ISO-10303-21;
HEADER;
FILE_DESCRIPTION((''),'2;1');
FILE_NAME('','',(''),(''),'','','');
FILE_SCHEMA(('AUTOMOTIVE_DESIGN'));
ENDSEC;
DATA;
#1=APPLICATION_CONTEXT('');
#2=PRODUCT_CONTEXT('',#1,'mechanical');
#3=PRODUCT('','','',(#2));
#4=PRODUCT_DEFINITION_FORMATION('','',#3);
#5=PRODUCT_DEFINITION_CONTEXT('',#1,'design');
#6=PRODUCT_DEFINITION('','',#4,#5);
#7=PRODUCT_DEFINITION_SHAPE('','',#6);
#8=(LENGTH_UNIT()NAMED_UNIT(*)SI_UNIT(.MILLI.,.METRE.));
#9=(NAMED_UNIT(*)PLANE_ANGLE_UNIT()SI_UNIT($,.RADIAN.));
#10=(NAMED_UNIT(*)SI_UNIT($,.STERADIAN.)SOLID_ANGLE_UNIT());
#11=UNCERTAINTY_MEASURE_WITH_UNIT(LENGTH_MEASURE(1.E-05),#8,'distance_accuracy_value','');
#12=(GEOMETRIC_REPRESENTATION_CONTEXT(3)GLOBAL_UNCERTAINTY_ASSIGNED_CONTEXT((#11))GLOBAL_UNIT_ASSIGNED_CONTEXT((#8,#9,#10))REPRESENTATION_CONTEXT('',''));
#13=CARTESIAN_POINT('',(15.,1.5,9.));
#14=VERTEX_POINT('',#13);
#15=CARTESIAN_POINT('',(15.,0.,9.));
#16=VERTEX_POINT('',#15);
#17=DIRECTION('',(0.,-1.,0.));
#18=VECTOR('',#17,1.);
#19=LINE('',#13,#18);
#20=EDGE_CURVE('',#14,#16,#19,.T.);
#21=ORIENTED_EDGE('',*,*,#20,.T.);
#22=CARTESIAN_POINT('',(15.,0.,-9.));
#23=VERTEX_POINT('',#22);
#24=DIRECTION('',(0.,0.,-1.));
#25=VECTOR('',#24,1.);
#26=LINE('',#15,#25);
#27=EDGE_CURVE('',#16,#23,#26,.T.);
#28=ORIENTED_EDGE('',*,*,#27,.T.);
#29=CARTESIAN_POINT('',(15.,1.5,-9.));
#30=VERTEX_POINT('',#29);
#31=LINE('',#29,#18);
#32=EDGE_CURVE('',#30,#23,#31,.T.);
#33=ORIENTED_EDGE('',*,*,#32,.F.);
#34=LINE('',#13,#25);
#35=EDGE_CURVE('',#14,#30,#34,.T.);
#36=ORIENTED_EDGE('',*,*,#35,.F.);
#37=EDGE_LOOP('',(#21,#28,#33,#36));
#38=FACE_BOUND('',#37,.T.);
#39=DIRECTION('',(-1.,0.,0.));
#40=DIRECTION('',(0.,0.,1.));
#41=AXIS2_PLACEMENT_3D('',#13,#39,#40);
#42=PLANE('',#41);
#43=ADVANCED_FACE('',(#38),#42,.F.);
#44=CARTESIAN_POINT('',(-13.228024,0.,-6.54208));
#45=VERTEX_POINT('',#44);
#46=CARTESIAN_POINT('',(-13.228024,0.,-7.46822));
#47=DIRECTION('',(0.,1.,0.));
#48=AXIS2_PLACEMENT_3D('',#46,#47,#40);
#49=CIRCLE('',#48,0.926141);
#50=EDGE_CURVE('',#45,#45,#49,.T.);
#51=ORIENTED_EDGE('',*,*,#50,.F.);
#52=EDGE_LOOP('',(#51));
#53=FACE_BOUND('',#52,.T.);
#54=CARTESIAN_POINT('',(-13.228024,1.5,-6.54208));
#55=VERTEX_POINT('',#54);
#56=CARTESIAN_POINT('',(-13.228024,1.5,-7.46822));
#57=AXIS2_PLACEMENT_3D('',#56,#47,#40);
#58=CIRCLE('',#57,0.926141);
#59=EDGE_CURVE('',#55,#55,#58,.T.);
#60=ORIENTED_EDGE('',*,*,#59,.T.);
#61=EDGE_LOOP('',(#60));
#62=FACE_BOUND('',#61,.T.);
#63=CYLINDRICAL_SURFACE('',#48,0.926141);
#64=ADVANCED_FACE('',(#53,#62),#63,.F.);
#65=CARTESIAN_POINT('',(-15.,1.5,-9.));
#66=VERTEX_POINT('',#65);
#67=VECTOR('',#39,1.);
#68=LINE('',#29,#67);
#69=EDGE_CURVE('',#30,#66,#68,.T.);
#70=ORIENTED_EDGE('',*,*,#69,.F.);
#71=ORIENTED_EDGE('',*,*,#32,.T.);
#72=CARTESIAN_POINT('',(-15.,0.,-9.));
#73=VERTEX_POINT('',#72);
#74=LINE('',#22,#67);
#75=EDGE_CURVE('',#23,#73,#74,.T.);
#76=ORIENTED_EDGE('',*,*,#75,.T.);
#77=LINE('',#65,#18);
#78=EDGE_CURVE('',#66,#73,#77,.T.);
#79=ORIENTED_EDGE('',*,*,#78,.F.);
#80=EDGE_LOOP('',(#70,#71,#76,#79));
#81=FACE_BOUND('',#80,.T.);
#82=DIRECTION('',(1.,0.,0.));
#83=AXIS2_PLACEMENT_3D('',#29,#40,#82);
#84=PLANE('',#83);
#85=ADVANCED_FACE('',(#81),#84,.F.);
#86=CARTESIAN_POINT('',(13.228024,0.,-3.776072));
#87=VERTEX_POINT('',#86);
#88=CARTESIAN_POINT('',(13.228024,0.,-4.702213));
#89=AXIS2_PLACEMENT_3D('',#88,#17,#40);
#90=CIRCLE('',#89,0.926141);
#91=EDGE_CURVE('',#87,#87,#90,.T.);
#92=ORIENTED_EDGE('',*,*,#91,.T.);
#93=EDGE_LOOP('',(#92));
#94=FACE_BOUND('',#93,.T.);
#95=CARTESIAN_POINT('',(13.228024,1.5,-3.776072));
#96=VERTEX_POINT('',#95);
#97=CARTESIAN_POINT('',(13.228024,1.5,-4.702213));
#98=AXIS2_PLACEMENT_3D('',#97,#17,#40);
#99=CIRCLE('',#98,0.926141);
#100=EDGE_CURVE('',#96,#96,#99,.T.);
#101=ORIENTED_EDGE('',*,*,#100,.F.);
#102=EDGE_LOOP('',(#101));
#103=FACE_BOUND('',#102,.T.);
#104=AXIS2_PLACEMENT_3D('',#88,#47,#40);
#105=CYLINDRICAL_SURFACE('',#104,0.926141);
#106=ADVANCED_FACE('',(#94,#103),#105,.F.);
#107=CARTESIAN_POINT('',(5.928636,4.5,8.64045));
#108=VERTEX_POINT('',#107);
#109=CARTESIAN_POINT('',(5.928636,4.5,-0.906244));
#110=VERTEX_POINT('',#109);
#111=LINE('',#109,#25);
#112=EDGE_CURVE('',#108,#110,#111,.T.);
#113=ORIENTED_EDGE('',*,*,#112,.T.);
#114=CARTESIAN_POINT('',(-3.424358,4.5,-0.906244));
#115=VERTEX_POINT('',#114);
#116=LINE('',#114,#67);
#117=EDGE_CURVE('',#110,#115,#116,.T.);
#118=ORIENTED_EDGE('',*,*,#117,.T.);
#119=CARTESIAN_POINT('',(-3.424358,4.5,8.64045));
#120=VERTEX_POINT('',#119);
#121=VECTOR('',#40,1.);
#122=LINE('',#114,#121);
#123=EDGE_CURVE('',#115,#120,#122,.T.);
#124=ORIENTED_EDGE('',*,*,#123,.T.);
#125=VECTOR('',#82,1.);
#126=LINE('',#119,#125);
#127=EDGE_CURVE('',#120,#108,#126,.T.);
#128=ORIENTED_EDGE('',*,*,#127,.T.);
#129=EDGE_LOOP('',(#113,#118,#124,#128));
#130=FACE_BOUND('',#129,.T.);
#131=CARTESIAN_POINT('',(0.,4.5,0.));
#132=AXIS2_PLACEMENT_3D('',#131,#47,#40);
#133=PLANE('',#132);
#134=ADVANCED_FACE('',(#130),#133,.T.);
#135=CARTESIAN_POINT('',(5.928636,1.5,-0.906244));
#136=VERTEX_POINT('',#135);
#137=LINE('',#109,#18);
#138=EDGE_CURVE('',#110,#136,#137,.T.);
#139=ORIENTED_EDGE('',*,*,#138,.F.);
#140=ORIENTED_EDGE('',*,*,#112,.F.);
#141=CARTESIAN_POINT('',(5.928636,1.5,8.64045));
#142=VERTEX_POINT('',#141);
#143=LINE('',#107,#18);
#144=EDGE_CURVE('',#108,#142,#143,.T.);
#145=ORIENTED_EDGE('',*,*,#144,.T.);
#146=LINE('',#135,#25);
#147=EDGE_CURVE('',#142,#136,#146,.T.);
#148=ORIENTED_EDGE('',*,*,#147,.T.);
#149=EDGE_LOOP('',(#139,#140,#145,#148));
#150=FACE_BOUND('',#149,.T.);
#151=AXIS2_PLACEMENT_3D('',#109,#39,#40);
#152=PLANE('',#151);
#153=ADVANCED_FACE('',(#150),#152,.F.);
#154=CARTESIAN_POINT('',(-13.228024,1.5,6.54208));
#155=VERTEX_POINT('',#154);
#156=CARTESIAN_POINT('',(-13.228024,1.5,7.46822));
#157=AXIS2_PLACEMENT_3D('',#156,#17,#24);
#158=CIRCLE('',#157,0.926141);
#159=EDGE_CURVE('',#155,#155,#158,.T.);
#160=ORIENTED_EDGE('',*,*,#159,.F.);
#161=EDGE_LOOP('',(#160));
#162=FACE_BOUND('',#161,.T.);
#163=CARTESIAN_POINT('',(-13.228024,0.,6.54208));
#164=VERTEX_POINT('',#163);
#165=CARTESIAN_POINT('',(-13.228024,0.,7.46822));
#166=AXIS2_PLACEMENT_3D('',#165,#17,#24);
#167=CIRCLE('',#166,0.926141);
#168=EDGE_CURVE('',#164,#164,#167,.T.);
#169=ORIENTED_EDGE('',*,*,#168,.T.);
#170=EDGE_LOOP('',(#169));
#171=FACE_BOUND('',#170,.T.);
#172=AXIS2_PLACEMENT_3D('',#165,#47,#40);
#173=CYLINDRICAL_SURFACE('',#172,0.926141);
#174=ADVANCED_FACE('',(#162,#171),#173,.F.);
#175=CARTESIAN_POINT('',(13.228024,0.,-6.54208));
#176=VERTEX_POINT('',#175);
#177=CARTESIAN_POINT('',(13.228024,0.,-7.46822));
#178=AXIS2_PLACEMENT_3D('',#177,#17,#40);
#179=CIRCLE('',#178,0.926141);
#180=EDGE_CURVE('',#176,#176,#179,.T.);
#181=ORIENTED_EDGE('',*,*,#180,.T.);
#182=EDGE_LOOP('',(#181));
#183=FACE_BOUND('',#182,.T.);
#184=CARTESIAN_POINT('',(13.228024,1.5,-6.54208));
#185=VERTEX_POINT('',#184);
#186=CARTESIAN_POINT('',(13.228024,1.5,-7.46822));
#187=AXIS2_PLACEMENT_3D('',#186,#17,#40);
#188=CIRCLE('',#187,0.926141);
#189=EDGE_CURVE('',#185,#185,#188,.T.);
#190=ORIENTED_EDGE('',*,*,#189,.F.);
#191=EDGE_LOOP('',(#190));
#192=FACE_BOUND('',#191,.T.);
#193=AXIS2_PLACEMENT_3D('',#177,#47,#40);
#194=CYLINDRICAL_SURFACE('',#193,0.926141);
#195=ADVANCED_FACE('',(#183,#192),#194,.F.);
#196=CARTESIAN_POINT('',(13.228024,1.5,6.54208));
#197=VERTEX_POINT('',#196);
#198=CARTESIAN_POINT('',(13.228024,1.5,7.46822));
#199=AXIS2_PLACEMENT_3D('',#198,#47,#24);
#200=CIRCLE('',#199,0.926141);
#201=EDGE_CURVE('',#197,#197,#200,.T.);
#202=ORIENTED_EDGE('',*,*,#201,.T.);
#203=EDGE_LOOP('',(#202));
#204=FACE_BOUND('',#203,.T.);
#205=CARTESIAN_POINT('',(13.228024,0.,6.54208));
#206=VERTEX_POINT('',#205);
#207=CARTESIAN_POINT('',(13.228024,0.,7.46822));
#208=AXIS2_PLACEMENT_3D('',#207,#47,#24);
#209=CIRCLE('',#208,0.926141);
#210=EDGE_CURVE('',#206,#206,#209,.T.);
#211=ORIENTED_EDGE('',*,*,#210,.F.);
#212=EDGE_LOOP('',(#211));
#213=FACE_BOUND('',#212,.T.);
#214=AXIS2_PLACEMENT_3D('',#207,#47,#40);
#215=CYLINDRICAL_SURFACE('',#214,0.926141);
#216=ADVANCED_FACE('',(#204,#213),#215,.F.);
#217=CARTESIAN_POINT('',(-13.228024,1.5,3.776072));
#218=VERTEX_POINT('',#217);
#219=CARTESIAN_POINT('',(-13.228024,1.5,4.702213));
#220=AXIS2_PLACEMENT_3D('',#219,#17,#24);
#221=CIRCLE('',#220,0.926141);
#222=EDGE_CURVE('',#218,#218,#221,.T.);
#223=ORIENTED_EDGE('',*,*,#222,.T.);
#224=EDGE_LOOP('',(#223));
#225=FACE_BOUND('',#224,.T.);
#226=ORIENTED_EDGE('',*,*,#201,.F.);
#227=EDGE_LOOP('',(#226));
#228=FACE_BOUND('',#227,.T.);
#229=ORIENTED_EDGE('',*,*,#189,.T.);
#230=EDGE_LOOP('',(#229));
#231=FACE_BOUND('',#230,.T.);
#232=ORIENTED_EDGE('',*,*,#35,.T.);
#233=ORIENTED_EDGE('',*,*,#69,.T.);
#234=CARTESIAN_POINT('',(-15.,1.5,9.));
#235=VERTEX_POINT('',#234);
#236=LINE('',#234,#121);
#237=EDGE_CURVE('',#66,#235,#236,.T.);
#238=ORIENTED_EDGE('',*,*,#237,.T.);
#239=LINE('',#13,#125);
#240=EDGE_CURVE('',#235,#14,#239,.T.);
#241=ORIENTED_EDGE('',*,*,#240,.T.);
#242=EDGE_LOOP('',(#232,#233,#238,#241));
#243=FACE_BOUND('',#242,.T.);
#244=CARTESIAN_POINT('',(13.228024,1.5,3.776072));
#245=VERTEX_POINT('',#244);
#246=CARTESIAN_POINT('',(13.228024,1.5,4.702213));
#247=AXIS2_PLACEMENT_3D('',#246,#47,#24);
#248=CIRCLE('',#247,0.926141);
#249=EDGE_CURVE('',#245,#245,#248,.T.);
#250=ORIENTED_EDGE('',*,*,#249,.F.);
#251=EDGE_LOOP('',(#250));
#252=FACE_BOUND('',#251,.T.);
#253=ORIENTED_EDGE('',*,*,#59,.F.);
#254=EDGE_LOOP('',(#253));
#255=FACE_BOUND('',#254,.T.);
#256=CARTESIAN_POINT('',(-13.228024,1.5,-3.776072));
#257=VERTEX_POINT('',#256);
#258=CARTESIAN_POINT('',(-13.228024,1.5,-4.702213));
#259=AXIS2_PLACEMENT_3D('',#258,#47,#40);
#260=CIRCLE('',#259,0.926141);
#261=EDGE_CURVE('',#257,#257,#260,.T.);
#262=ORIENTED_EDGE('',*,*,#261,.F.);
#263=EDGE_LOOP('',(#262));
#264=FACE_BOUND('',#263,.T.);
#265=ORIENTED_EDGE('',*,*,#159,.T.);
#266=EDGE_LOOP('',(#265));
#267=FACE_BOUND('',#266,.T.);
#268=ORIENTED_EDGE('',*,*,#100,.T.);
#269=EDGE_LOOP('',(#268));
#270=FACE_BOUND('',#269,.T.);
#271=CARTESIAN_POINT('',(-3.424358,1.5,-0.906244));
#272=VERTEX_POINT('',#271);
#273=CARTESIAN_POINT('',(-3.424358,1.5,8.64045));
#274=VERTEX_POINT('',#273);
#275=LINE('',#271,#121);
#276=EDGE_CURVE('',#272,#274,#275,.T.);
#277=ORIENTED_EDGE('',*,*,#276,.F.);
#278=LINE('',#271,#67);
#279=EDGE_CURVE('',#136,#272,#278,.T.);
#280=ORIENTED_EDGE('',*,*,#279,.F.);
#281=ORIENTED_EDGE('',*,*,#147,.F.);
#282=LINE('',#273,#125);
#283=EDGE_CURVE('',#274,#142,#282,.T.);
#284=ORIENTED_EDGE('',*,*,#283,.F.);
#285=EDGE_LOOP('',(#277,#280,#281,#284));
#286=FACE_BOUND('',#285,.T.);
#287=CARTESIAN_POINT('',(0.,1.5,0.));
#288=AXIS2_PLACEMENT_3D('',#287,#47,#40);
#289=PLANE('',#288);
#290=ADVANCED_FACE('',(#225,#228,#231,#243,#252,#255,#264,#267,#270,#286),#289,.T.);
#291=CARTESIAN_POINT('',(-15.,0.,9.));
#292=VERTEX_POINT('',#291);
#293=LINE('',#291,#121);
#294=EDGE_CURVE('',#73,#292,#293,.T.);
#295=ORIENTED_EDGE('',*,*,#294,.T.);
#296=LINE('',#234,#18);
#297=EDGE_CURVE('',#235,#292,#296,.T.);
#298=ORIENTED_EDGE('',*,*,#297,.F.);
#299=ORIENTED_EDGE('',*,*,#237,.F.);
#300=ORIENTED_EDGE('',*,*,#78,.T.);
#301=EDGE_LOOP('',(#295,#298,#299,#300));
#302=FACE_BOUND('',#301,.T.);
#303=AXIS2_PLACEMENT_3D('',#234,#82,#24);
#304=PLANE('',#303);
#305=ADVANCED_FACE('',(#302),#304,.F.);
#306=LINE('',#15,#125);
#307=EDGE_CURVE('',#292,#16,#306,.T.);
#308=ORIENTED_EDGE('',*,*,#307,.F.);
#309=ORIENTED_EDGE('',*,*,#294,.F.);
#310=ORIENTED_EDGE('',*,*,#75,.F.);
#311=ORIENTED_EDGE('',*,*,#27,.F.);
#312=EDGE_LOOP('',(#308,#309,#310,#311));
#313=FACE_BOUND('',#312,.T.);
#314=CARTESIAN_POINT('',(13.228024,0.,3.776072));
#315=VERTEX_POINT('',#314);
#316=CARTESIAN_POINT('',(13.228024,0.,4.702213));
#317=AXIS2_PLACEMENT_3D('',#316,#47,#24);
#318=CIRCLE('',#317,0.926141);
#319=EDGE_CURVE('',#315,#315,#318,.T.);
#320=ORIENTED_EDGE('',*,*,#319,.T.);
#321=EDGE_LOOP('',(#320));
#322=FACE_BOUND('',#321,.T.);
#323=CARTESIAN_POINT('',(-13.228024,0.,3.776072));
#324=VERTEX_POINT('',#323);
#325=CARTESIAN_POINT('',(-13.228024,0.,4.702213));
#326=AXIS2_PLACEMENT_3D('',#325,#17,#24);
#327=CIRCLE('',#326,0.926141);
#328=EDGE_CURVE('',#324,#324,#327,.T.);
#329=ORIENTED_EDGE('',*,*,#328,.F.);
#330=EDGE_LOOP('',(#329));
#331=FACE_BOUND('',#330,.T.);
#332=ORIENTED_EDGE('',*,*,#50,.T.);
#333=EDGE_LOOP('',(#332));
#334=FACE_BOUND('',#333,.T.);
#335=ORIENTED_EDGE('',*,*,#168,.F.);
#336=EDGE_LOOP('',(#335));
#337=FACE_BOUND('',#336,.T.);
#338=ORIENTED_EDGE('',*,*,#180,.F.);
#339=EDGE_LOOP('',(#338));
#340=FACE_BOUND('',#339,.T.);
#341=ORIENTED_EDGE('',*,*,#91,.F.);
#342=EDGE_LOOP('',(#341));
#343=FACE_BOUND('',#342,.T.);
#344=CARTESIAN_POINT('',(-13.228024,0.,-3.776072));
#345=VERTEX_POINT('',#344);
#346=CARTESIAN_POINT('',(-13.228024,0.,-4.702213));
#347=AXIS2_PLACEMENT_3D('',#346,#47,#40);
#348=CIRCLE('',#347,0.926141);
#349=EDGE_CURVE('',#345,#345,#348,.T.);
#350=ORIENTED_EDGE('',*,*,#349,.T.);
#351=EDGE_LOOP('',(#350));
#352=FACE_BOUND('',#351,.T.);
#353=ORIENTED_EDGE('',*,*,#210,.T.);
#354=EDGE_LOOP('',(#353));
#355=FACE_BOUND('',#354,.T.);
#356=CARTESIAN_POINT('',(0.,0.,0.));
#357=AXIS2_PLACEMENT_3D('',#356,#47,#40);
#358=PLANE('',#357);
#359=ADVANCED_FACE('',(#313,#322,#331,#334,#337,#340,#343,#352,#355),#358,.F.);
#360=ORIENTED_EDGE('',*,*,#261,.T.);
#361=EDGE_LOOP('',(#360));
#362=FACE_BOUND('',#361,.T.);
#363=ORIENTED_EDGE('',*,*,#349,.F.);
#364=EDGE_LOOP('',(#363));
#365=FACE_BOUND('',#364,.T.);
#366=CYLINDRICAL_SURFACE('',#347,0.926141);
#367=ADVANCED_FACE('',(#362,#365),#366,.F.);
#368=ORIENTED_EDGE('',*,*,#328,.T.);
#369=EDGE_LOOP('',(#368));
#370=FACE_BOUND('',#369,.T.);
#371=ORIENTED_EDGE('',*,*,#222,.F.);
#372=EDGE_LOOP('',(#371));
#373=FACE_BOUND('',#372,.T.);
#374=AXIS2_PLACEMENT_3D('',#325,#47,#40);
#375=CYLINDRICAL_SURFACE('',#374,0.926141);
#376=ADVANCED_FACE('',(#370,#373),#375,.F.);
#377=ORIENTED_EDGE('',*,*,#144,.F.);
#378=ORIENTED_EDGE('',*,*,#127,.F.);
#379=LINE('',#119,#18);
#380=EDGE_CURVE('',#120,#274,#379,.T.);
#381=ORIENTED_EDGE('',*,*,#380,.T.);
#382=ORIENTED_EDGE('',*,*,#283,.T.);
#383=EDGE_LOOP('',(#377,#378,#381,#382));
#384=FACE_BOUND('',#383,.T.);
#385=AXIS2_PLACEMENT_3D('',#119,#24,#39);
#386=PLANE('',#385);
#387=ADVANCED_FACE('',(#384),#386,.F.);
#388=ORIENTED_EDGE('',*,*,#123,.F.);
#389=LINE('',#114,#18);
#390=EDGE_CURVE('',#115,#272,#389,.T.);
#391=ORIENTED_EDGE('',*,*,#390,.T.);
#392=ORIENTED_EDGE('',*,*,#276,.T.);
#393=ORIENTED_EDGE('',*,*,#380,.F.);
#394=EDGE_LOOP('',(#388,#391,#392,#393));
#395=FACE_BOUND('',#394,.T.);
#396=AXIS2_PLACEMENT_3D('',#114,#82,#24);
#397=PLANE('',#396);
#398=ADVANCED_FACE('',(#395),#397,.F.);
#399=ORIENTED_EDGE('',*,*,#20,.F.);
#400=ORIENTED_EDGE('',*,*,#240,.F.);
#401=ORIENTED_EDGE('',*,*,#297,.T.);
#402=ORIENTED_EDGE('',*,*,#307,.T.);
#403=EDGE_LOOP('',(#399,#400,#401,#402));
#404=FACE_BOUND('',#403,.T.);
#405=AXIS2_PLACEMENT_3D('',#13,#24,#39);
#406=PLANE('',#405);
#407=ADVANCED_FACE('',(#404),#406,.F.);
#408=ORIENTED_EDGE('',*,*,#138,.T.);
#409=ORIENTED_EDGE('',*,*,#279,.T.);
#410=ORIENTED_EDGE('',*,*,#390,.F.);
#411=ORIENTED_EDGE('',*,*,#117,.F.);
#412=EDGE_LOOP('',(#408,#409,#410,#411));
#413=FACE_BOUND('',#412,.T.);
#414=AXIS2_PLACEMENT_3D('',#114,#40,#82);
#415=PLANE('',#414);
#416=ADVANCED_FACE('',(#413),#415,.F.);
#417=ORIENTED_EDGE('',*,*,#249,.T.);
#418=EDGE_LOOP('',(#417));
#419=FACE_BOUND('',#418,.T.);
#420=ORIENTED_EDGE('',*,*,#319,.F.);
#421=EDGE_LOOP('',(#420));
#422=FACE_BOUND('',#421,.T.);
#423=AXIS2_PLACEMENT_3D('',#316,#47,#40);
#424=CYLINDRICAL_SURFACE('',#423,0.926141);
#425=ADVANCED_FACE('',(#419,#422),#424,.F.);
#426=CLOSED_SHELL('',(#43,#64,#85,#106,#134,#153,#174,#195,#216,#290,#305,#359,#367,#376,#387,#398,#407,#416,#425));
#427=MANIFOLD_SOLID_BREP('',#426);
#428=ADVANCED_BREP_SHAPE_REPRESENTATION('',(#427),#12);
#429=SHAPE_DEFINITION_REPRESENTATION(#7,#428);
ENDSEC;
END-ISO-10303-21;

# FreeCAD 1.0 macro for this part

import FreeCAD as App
import Part
import Sketcher
from FreeCAD import Vector

doc = App.newDocument("Part")
body = doc.addObject("PartDesign::Body", "Body")

# Sketch on XZ plane
sketch1 = body.newObject("Sketcher::SketchObject", "Sketch")
sketch1.AttachmentSupport = (doc.getObject("XZ_Plane"), [""])
sketch1.MapMode = "FlatFace"
sketch1.addGeometry([
    Part.LineSegment(Vector(-15, -9, 0), Vector(-15, 9, 0)),
    Part.LineSegment(Vector(-15, 9, 0), Vector(15, 9, 0)),
    Part.LineSegment(Vector(15, 9, 0), Vector(15, -9, 0)),
    Part.LineSegment(Vector(15, -9, 0), Vector(-15, -9, 0)),
], False)
sketch1.addConstraint([
    Sketcher.Constraint("Coincident", 0, 2, 1, 1),
    Sketcher.Constraint("Coincident", 1, 2, 2, 1),
    Sketcher.Constraint("Coincident", 2, 2, 3, 1),
    Sketcher.Constraint("Coincident", 3, 2, 0, 1),
    Sketcher.Constraint("Vertical", 0),
    Sketcher.Constraint("Horizontal", 1),
    Sketcher.Constraint("Vertical", 2),
    Sketcher.Constraint("Horizontal", 3),
    Sketcher.Constraint("Symmetric", 0, 2, 2, 2, -1, 1),
    Sketcher.Constraint("DistanceX", 1, 1, 1, 2, 30.0),
    Sketcher.Constraint("DistanceY", 0, 1, 0, 2, 18.0),
])
pad1 = body.newObject("PartDesign::Pad", "Pad")
pad1.Profile = sketch1
pad1.Length = 1.5
pad1.Reversed = True

# Sketch on XZ plane
sketch2 = body.newObject("Sketcher::SketchObject", "Sketch001")
sketch2.AttachmentSupport = (doc.getObject("XZ_Plane"), [""])
sketch2.MapMode = "FlatFace"
sketch2.AttachmentOffset = App.Placement(Vector(0, 0, -1.5), App.Rotation())
sketch2.addGeometry([
    Part.LineSegment(Vector(-3, -1, 0), Vector(-3, 9, 0)),
    Part.LineSegment(Vector(-3, 9, 0), Vector(6, 9, 0)),
    Part.LineSegment(Vector(6, 9, 0), Vector(6, -1, 0)),
    Part.LineSegment(Vector(6, -1, 0), Vector(-3, -1, 0)),
], False)
sketch2.addConstraint([
    Sketcher.Constraint("Coincident", 0, 2, 1, 1),
    Sketcher.Constraint("Coincident", 1, 2, 2, 1),
    Sketcher.Constraint("Coincident", 2, 2, 3, 1),
    Sketcher.Constraint("Coincident", 3, 2, 0, 1),
    Sketcher.Constraint("Vertical", 0),
    Sketcher.Constraint("Horizontal", 1),
    Sketcher.Constraint("Vertical", 2),
    Sketcher.Constraint("Horizontal", 3),
    Sketcher.Constraint("DistanceX", 1, 1, 1, 2, 9.352994),
    Sketcher.Constraint("DistanceY", 0, 1, 0, 2, 9.546695),
    Sketcher.Constraint("DistanceY", -1, 1, 0, 2, 8.64045),
    Sketcher.Constraint("DistanceX", 0, 2, -1, 1, 3.424358),
])
pad2 = body.newObject("PartDesign::Pad", "Pad001")
pad2.Profile = sketch2
pad2.Length = 3
pad2.Reversed = True

# Sketch on XZ plane
sketch3 = body.newObject("Sketcher::SketchObject", "Sketch002")
sketch3.AttachmentSupport = (doc.getObject("XZ_Plane"), [""])
sketch3.MapMode = "FlatFace"
sketch3.AttachmentOffset = App.Placement(Vector(0, 0, -1.5), App.Rotation())
sketch3.addGeometry([
    Part.Circle(Vector(-13.2, -7.5, 0), Vector(0, 0, 1), 0.9),
    Part.Circle(Vector(-13.2, -4.7, 0), Vector(0, 0, 1), 0.9),
], False)
sketch3.addConstraint([
    Sketcher.Constraint("Equal", 0, 1),
    Sketcher.Constraint("Vertical", 0, 3, 1, 3),
    Sketcher.Constraint("Diameter", 0, 1.852281),
    Sketcher.Constraint("DistanceY", 0, 3, -1, 1, 7.46822),
    Sketcher.Constraint("DistanceX", 0, 3, -1, 1, 13.228024),
    Sketcher.Constraint("DistanceY", 1, 3, -1, 1, 4.702213),
])
pocket1 = body.newObject("PartDesign::Pocket", "Pocket")
pocket1.Profile = sketch3
pocket1.Type = "ThroughAll"
pocket1.Reversed = True
doc.recompute()

polarpattern = body.newObject("PartDesign::PolarPattern", "PolarPattern")
polarpattern.Originals = [pocket1]
polarpattern.Axis = (doc.getObject("Y_Axis"), [""])
polarpattern.Angle = 360
polarpattern.Occurrences = 2
body.Tip = polarpattern
doc.recompute()

mirrored = body.newObject("PartDesign::Mirrored", "Mirrored")
mirrored.Originals = [pocket1]
mirrored.MirrorPlane = (doc.getObject("YZ_Plane"), [""])
body.Tip = mirrored

# Sketch on XZ plane
sketch4 = body.newObject("Sketcher::SketchObject", "Sketch003")
sketch4.AttachmentSupport = (doc.getObject("XZ_Plane"), [""])
sketch4.MapMode = "FlatFace"
sketch4.AttachmentOffset = App.Placement(Vector(0, 0, -1.5), App.Rotation())
sketch4.addGeometry([
    Part.Circle(Vector(-13.2, 7.5, 0), Vector(0, 0, 1), 0.9),
    Part.Circle(Vector(-13.2, 4.7, 0), Vector(0, 0, 1), 0.9),
], False)
sketch4.addConstraint([
    Sketcher.Constraint("Equal", 0, 1),
    Sketcher.Constraint("Vertical", 0, 3, 1, 3),
    Sketcher.Constraint("Diameter", 0, 1.852281),
    Sketcher.Constraint("DistanceY", -1, 1, 0, 3, 7.46822),
    Sketcher.Constraint("DistanceX", 0, 3, -1, 1, 13.228024),
    Sketcher.Constraint("DistanceY", -1, 1, 1, 3, 4.702213),
])
pocket2 = body.newObject("PartDesign::Pocket", "Pocket001")
pocket2.Profile = sketch4
pocket2.Type = "ThroughAll"
pocket2.Reversed = True

doc.recompute()
